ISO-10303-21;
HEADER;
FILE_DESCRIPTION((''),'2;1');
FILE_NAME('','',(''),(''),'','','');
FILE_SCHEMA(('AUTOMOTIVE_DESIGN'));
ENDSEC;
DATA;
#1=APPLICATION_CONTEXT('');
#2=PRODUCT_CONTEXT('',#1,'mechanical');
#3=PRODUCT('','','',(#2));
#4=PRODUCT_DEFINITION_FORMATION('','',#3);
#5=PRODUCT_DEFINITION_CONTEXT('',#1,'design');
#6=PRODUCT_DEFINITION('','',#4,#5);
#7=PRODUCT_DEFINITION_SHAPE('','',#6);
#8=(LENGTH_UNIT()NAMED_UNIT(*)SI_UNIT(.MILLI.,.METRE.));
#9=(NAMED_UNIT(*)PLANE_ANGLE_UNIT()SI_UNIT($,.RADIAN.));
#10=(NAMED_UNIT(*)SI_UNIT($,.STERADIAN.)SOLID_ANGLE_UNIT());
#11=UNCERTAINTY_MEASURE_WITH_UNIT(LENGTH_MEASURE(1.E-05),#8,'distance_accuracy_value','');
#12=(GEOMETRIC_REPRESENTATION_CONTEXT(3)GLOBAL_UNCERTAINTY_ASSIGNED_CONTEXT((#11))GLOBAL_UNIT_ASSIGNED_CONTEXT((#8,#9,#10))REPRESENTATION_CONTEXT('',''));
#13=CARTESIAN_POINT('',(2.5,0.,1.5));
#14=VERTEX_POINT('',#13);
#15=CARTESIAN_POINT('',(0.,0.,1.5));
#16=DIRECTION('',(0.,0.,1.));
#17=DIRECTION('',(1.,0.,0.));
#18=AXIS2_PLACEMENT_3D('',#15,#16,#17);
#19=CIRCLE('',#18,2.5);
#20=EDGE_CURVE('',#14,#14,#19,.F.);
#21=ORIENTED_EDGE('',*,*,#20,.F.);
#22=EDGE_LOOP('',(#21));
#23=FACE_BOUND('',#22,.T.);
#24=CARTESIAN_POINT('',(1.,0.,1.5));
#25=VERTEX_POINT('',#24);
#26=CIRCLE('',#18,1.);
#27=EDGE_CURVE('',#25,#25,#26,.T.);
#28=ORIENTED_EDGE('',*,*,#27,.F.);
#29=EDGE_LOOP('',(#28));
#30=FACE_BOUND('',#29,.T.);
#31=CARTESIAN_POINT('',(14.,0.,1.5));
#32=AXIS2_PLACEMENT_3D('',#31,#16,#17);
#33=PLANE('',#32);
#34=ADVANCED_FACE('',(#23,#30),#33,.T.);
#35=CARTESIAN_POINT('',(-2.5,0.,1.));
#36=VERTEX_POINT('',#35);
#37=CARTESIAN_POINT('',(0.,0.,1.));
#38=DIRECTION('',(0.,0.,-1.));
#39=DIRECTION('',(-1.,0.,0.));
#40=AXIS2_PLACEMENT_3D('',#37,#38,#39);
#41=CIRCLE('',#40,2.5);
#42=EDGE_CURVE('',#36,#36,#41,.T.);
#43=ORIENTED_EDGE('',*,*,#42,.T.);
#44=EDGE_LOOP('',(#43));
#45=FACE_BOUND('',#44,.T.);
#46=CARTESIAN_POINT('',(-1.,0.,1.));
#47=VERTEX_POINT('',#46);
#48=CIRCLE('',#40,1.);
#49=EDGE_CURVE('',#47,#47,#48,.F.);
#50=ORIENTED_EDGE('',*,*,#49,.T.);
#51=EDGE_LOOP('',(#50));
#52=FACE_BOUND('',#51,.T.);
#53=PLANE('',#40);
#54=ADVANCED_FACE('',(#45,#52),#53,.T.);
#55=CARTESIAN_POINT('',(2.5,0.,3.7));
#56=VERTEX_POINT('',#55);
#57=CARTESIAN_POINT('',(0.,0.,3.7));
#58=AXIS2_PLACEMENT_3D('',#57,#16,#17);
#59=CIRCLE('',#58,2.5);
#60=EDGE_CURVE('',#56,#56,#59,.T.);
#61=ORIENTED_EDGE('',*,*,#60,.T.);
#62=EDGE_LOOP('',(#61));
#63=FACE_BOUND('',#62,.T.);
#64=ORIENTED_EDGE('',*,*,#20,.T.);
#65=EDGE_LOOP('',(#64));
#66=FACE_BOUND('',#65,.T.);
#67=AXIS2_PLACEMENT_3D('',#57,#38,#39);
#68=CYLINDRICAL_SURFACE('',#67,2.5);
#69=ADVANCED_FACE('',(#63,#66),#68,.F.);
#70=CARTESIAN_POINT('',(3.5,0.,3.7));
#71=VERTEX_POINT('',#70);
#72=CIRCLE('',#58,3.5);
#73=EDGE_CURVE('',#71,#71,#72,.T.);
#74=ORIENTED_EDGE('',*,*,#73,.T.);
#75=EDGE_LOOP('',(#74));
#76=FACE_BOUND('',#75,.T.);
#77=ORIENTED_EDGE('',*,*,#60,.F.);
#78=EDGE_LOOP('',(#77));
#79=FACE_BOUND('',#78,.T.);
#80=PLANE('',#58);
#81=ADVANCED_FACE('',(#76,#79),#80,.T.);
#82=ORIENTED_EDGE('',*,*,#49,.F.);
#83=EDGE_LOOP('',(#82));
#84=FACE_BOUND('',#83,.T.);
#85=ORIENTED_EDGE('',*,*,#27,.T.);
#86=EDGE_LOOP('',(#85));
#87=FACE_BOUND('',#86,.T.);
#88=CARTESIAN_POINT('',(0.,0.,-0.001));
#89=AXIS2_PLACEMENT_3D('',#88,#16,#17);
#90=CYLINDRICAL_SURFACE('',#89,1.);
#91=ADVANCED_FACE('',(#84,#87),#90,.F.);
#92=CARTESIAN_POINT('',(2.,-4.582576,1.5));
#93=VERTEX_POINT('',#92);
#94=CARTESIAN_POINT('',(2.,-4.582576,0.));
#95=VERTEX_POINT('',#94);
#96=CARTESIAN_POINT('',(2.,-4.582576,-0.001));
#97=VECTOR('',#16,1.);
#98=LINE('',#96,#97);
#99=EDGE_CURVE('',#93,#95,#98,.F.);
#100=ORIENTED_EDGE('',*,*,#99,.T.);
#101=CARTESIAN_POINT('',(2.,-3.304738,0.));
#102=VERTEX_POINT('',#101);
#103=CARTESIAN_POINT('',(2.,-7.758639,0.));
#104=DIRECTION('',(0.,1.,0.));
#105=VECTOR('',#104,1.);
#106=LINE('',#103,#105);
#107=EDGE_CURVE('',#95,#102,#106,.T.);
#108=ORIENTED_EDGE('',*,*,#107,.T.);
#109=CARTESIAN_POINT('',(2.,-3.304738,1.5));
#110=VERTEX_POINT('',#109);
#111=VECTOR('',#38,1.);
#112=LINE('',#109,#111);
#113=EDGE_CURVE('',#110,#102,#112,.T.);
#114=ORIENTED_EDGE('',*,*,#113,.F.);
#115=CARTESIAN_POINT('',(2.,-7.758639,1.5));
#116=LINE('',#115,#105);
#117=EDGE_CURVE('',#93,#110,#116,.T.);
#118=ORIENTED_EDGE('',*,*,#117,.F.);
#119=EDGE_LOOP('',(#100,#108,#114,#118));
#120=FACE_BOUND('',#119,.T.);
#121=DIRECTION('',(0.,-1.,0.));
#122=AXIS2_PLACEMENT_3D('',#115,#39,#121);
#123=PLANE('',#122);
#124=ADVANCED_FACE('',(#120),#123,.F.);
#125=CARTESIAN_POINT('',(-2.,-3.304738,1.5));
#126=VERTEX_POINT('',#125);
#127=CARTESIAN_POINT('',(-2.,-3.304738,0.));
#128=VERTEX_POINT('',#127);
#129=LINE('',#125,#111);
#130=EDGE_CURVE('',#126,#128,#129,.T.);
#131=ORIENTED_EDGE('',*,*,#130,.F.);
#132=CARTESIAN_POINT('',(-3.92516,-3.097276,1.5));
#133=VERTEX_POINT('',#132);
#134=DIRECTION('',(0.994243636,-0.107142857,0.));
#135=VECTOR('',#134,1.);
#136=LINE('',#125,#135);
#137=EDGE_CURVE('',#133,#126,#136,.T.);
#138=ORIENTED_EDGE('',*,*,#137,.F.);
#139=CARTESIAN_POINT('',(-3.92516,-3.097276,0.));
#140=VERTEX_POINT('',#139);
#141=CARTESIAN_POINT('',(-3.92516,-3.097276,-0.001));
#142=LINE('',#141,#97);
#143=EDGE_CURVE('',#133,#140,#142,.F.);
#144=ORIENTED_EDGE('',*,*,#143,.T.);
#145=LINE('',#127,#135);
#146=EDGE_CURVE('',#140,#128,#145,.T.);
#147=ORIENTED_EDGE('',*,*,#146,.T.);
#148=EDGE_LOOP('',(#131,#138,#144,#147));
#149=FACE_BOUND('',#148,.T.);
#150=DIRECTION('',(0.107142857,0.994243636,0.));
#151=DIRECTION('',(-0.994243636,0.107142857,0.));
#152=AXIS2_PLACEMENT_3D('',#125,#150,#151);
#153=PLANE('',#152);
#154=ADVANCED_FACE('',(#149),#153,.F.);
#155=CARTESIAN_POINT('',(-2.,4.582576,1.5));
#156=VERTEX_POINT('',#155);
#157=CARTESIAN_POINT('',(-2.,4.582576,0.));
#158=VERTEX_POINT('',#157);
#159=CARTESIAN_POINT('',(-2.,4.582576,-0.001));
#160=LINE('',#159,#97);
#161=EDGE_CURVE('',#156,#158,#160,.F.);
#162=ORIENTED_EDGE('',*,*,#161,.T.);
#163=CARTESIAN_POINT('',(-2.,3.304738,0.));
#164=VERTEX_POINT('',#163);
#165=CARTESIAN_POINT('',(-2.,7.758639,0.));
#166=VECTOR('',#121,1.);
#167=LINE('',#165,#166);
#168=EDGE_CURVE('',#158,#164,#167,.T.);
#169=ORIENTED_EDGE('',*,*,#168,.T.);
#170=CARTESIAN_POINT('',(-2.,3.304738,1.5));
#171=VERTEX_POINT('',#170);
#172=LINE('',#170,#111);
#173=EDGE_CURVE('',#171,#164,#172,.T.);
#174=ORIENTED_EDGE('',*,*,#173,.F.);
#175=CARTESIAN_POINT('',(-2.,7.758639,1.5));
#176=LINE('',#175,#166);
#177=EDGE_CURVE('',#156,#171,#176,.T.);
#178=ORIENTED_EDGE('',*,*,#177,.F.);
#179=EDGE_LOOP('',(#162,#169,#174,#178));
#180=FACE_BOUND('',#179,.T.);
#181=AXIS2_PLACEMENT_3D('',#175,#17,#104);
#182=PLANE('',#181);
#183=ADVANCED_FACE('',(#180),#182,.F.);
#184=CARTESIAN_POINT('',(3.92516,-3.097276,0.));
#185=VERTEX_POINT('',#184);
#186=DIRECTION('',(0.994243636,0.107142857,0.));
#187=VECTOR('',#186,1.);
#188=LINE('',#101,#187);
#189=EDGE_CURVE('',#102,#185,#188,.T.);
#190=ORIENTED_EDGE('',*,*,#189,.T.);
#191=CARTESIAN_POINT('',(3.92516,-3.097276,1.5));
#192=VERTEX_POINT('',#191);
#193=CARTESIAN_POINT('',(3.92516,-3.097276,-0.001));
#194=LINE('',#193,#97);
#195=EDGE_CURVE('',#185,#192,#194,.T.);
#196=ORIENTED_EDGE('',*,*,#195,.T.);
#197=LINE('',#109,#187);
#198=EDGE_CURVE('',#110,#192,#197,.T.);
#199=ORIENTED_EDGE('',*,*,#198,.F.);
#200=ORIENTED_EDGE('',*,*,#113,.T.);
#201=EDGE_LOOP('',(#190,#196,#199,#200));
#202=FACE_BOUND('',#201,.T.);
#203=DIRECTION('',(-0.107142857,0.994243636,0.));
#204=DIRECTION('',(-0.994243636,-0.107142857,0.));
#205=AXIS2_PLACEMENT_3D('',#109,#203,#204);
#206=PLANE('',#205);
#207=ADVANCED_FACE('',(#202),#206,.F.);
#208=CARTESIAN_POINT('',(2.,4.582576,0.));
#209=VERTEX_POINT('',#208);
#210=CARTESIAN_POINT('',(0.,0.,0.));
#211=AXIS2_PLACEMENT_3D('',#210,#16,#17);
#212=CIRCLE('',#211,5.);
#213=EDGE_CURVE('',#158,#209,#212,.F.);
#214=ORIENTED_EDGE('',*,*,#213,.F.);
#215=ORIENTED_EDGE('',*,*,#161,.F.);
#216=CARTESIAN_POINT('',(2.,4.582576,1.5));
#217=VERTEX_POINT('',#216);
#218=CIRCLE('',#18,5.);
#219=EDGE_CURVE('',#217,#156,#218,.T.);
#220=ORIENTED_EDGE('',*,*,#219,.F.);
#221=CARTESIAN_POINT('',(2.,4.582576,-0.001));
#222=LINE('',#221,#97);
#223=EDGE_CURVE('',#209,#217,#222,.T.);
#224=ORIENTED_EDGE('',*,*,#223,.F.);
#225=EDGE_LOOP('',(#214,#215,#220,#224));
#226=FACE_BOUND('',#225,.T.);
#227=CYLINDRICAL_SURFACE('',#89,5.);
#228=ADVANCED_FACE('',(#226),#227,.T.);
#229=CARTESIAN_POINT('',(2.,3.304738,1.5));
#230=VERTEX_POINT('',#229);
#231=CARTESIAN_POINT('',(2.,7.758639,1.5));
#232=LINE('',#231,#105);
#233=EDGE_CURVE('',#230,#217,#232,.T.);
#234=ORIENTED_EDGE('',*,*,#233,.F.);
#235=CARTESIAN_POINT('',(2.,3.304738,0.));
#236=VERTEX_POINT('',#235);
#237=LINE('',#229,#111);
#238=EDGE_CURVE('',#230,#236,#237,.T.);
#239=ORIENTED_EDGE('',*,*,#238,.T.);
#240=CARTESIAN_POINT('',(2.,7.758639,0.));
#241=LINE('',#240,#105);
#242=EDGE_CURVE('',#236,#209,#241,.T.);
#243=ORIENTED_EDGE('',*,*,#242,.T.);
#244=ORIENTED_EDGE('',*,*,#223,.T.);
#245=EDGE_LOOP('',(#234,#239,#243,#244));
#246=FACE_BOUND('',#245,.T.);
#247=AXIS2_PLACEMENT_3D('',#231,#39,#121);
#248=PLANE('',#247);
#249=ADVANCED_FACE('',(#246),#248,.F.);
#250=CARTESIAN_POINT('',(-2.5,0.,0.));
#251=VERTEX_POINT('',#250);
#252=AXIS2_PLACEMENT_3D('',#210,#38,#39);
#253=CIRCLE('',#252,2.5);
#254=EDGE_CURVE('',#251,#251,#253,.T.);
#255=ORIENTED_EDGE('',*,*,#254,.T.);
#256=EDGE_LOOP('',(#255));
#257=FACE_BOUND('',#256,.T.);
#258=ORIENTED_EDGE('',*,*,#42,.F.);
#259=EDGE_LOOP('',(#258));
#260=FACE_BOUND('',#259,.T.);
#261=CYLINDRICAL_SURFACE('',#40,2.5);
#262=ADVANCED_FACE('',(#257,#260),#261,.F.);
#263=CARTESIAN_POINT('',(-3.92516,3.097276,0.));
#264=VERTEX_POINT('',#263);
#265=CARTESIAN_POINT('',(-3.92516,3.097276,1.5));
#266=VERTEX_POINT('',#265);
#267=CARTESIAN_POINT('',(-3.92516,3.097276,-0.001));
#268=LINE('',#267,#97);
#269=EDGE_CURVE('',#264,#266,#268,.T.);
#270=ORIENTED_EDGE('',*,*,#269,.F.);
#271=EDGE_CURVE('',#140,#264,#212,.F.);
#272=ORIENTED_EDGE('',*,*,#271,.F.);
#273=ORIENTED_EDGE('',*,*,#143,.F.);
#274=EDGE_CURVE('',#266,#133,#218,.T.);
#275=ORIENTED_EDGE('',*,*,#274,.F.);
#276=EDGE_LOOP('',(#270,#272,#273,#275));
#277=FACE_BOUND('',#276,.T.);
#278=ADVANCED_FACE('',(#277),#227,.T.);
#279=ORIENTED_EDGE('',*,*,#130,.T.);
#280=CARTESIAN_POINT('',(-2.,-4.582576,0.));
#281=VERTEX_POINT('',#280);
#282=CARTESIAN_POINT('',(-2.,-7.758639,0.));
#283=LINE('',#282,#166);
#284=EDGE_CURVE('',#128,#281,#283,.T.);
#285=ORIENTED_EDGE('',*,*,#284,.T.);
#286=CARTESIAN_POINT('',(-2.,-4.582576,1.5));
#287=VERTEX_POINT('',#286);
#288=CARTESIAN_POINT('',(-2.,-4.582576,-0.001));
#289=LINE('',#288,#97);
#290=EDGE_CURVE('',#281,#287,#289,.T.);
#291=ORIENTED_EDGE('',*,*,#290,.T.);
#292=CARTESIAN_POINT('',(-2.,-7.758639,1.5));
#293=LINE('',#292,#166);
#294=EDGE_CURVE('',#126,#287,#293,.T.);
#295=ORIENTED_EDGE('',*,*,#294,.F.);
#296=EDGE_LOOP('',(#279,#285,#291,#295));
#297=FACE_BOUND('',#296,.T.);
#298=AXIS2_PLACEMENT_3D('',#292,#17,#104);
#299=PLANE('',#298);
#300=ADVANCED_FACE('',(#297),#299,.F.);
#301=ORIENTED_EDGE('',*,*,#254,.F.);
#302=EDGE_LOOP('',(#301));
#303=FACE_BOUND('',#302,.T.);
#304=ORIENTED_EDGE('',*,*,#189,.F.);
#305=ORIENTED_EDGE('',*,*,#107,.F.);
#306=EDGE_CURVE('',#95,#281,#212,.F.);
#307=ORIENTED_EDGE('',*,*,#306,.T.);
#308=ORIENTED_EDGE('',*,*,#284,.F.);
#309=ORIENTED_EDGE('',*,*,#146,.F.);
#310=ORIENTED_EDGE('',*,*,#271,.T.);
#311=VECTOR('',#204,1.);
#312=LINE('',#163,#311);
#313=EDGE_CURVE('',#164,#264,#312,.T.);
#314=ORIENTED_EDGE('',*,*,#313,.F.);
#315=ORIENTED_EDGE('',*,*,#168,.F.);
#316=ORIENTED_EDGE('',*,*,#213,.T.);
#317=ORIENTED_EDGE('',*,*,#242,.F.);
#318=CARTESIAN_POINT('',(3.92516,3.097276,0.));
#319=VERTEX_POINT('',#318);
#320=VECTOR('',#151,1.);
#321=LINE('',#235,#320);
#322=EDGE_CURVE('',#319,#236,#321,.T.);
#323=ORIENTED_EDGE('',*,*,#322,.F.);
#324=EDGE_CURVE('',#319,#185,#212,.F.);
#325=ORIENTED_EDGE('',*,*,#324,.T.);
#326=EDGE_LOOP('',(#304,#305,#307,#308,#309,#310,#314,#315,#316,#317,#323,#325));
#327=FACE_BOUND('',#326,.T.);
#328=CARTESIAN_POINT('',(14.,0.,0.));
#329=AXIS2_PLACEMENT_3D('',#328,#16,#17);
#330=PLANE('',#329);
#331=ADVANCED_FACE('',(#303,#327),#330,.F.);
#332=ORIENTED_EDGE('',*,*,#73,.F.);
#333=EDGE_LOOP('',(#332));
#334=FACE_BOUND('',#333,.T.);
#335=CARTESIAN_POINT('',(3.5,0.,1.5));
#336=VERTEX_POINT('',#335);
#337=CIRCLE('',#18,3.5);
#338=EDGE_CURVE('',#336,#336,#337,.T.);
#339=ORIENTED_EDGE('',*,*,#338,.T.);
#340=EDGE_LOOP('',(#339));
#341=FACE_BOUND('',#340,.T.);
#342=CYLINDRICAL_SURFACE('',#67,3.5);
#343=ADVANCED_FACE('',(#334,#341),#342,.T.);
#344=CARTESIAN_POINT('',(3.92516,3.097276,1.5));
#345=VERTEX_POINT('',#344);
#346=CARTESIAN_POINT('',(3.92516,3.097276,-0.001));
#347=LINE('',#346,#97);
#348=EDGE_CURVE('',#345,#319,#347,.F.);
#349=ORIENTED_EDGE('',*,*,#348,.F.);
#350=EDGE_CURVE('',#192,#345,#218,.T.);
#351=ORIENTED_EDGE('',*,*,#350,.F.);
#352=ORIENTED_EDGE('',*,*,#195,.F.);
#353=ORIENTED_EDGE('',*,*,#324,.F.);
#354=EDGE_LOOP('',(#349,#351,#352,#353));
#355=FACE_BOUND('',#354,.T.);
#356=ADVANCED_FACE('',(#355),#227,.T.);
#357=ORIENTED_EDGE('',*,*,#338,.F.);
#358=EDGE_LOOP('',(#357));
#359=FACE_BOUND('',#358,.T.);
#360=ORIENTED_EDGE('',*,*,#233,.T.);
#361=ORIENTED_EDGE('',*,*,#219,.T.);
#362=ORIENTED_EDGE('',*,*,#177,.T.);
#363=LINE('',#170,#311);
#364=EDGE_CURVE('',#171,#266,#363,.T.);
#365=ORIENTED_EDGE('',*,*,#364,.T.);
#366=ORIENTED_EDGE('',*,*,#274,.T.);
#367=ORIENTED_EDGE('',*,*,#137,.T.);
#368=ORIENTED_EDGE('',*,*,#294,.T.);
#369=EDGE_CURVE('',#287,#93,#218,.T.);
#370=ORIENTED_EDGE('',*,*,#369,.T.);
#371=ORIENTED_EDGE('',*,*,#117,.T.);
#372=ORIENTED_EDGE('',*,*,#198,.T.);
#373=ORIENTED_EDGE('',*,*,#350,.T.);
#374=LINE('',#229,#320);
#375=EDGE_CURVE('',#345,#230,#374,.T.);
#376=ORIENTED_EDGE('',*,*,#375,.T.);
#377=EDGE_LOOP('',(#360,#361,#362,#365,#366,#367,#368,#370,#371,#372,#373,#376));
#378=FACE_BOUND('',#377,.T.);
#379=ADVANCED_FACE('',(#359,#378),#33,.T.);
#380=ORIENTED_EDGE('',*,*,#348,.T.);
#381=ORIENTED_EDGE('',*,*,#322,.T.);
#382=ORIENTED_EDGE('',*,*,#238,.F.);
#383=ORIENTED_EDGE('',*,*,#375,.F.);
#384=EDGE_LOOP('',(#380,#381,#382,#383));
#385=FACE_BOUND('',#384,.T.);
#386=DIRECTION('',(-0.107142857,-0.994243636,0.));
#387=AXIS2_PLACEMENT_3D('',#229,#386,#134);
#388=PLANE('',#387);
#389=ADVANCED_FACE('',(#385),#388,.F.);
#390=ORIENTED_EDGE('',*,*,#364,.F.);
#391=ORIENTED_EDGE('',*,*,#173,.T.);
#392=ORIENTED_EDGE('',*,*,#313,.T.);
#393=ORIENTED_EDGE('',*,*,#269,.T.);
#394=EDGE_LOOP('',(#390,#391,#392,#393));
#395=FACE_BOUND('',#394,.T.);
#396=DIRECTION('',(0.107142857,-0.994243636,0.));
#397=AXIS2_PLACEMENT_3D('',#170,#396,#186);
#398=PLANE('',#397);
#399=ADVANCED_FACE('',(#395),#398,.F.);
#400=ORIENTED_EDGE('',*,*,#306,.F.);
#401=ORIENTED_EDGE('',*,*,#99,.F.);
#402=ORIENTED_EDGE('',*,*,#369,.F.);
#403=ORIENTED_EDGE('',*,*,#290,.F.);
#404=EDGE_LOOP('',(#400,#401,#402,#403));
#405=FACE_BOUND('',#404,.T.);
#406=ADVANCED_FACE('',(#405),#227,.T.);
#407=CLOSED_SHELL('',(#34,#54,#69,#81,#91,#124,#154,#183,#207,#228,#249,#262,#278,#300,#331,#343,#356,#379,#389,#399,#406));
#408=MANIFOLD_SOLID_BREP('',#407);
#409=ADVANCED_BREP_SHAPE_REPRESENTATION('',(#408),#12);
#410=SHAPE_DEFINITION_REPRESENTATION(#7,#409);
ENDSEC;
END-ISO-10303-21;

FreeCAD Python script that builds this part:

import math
import FreeCAD as App
import Part
import Sketcher

V = App.Vector
Q = App.Units.Quantity

doc = App.newDocument("Part")
body = doc.addObject("PartDesign::Body", "Body")

# Sketch on XY plane
sketch1 = body.newObject("Sketcher::SketchObject", "Sketch")
sketch1.AttachmentSupport = (doc.getObject("XY_Plane"), [""])
sketch1.MapMode = "FlatFace"
sketch1.addGeometry([
    Part.LineSegment(V(2, 3.3, 0), V(2, 7.8, 0)),  # 0
    Part.ArcOfCircle(Part.Circle(V(0, 7.8, 0), V(0, 0, 1), 2), math.radians(0), math.radians(180)),  # 1
    Part.LineSegment(V(-2, 7.8, 0), V(-2, 3.3, 0)),  # 2
    Part.LineSegment(V(-2, 3.3, 0), V(-14.2, 2, 0)),  # 3
    Part.ArcOfCircle(Part.Circle(V(-14, 0, 0), V(0, 0, 1), 2), math.radians(96), math.radians(264)),  # 4
    Part.LineSegment(V(-14.2, -2, 0), V(-2, -3.3, 0)),  # 5
    Part.LineSegment(V(-2, -3.3, 0), V(-2, -7.8, 0)),  # 6
    Part.ArcOfCircle(Part.Circle(V(0, -7.8, 0), V(0, 0, 1), 2), math.radians(180), math.radians(360)),  # 7
    Part.LineSegment(V(2, -7.8, 0), V(2, -3.3, 0)),  # 8
    Part.LineSegment(V(2, -3.3, 0), V(14.2, -2, 0)),  # 9
    Part.ArcOfCircle(Part.Circle(V(14, 0, 0), V(0, 0, 1), 2), math.radians(-84), math.radians(84)),  # 10
    Part.LineSegment(V(14.2, 2, 0), V(2, 3.3, 0)),  # 11
], False)
sketch1.addConstraint([
    Sketcher.Constraint("Tangent", 0, 2, 1, 1),
    Sketcher.Constraint("Tangent", 1, 2, 2, 1),
    Sketcher.Constraint("Coincident", 2, 2, 3, 1),
    Sketcher.Constraint("Tangent", 3, 2, 4, 1),
    Sketcher.Constraint("Tangent", 4, 2, 5, 1),
    Sketcher.Constraint("Coincident", 5, 2, 6, 1),
    Sketcher.Constraint("Tangent", 6, 2, 7, 1),
    Sketcher.Constraint("Tangent", 7, 2, 8, 1),
    Sketcher.Constraint("Coincident", 8, 2, 9, 1),
    Sketcher.Constraint("Tangent", 9, 2, 10, 1),
    Sketcher.Constraint("Tangent", 10, 2, 11, 1),
    Sketcher.Constraint("Coincident", 11, 2, 0, 1),
    Sketcher.Constraint("Vertical", 0),
    Sketcher.Constraint("Vertical", 2),
    Sketcher.Constraint("Vertical", 6),
    Sketcher.Constraint("Vertical", 8),
    Sketcher.Constraint("Equal", 1, 4),
    Sketcher.Constraint("Equal", 4, 7),
    Sketcher.Constraint("Equal", 7, 10),
    Sketcher.Constraint("Symmetric", 1, 3, 7, 3, -1, 1),
    Sketcher.Constraint("Symmetric", 4, 3, 10, 3, -1, 1),
    Sketcher.Constraint("Symmetric", 5, 2, 8, 2, -2),
    Sketcher.Constraint("Symmetric", 3, 2, 10, 2, -2),
    Sketcher.Constraint("Parallel", 3, 9),
    Sketcher.Constraint("Radius", 1, Q("2 mm")),
    Sketcher.Constraint("DistanceX", 4, 3, -1, 1, Q("14 mm")),
    Sketcher.Constraint("DistanceY", 0, 1, 0, 2, Q("4.453901 mm")),
    Sketcher.Constraint("DistanceY", -1, 1, 1, 3, Q("7.758639 mm")),
])
pad1 = body.newObject("PartDesign::Pad", "Pad")
pad1.Profile = sketch1
pad1.Length = 1.5

# Sketch on XY plane
sketch2 = body.newObject("Sketcher::SketchObject", "Sketch001")
sketch2.AttachmentSupport = (doc.getObject("XY_Plane"), [""])
sketch2.MapMode = "FlatFace"
sketch2.AttachmentOffset = App.Placement(V(0, 0, 1.5), App.Rotation())
sketch2.addGeometry([
    Part.Circle(V(0, 0, 0), V(0, 0, 1), 3.5),
    Part.Circle(V(0, 0, 0), V(0, 0, 1), 2.5),
], False)
sketch2.addConstraint([
    Sketcher.Constraint("Coincident", 0, 3, -1, 1),
    Sketcher.Constraint("Coincident", 1, 3, -1, 1),
    Sketcher.Constraint("Diameter", 0, Q("7 mm")),
    Sketcher.Constraint("Diameter", 1, Q("5 mm")),
])
pad2 = body.newObject("PartDesign::Pad", "Pad001")
pad2.Profile = sketch2
pad2.Length = 2.2

# Sketch on XY plane
sketch3 = body.newObject("Sketcher::SketchObject", "Sketch002")
sketch3.AttachmentSupport = (doc.getObject("XY_Plane"), [""])
sketch3.MapMode = "FlatFace"
sketch3.AttachmentOffset = App.Placement(V(0, 0, 1.5), App.Rotation())
sketch3.addGeometry(Part.Circle(V(0, 0, 0), V(0, 0, 1), 1), False)
sketch3.addConstraint([
    Sketcher.Constraint("Coincident", 0, 3, -1, 1),
    Sketcher.Constraint("Diameter", 0, Q("2 mm")),
])
pocket1 = body.newObject("PartDesign::Pocket", "Pocket")
pocket1.Profile = sketch3
pocket1.Type = "UpToFirst"

# Sketch on XY plane
sketch4 = body.newObject("Sketcher::SketchObject", "Sketch003")
sketch4.AttachmentSupport = (doc.getObject("XY_Plane"), [""])
sketch4.MapMode = "FlatFace"
sketch4.addGeometry(Part.Circle(V(0, 0, 0), V(0, 0, 1), 2.5), False)
sketch4.addConstraint([
    Sketcher.Constraint("Coincident", 0, 3, -1, 1),
    Sketcher.Constraint("Diameter", 0, Q("5 mm")),
])
pocket2 = body.newObject("PartDesign::Pocket", "Pocket001")
pocket2.Profile = sketch4
pocket2.Length = 1
pocket2.Reversed = True

# Sketch on XY plane
sketch5 = body.newObject("Sketcher::SketchObject", "Sketch004")
sketch5.AttachmentSupport = (doc.getObject("XY_Plane"), [""])
sketch5.MapMode = "FlatFace"
sketch5.addGeometry([
    Part.Circle(V(0, 0, 0), V(0, 0, 1), 18),
    Part.Circle(V(0, 0, 0), V(0, 0, 1), 5),
], False)
sketch5.addConstraint([
    Sketcher.Constraint("Coincident", 0, 3, -1, 1),
    Sketcher.Constraint("Coincident", 1, 3, -1, 1),
    Sketcher.Constraint("Diameter", 0, Q("35 mm")),
    Sketcher.Constraint("Diameter", 1, Q("10 mm")),
])
pocket3 = body.newObject("PartDesign::Pocket", "Pocket002")
pocket3.Profile = sketch5
pocket3.Length = 1.5
pocket3.Reversed = True

doc.recompute()
